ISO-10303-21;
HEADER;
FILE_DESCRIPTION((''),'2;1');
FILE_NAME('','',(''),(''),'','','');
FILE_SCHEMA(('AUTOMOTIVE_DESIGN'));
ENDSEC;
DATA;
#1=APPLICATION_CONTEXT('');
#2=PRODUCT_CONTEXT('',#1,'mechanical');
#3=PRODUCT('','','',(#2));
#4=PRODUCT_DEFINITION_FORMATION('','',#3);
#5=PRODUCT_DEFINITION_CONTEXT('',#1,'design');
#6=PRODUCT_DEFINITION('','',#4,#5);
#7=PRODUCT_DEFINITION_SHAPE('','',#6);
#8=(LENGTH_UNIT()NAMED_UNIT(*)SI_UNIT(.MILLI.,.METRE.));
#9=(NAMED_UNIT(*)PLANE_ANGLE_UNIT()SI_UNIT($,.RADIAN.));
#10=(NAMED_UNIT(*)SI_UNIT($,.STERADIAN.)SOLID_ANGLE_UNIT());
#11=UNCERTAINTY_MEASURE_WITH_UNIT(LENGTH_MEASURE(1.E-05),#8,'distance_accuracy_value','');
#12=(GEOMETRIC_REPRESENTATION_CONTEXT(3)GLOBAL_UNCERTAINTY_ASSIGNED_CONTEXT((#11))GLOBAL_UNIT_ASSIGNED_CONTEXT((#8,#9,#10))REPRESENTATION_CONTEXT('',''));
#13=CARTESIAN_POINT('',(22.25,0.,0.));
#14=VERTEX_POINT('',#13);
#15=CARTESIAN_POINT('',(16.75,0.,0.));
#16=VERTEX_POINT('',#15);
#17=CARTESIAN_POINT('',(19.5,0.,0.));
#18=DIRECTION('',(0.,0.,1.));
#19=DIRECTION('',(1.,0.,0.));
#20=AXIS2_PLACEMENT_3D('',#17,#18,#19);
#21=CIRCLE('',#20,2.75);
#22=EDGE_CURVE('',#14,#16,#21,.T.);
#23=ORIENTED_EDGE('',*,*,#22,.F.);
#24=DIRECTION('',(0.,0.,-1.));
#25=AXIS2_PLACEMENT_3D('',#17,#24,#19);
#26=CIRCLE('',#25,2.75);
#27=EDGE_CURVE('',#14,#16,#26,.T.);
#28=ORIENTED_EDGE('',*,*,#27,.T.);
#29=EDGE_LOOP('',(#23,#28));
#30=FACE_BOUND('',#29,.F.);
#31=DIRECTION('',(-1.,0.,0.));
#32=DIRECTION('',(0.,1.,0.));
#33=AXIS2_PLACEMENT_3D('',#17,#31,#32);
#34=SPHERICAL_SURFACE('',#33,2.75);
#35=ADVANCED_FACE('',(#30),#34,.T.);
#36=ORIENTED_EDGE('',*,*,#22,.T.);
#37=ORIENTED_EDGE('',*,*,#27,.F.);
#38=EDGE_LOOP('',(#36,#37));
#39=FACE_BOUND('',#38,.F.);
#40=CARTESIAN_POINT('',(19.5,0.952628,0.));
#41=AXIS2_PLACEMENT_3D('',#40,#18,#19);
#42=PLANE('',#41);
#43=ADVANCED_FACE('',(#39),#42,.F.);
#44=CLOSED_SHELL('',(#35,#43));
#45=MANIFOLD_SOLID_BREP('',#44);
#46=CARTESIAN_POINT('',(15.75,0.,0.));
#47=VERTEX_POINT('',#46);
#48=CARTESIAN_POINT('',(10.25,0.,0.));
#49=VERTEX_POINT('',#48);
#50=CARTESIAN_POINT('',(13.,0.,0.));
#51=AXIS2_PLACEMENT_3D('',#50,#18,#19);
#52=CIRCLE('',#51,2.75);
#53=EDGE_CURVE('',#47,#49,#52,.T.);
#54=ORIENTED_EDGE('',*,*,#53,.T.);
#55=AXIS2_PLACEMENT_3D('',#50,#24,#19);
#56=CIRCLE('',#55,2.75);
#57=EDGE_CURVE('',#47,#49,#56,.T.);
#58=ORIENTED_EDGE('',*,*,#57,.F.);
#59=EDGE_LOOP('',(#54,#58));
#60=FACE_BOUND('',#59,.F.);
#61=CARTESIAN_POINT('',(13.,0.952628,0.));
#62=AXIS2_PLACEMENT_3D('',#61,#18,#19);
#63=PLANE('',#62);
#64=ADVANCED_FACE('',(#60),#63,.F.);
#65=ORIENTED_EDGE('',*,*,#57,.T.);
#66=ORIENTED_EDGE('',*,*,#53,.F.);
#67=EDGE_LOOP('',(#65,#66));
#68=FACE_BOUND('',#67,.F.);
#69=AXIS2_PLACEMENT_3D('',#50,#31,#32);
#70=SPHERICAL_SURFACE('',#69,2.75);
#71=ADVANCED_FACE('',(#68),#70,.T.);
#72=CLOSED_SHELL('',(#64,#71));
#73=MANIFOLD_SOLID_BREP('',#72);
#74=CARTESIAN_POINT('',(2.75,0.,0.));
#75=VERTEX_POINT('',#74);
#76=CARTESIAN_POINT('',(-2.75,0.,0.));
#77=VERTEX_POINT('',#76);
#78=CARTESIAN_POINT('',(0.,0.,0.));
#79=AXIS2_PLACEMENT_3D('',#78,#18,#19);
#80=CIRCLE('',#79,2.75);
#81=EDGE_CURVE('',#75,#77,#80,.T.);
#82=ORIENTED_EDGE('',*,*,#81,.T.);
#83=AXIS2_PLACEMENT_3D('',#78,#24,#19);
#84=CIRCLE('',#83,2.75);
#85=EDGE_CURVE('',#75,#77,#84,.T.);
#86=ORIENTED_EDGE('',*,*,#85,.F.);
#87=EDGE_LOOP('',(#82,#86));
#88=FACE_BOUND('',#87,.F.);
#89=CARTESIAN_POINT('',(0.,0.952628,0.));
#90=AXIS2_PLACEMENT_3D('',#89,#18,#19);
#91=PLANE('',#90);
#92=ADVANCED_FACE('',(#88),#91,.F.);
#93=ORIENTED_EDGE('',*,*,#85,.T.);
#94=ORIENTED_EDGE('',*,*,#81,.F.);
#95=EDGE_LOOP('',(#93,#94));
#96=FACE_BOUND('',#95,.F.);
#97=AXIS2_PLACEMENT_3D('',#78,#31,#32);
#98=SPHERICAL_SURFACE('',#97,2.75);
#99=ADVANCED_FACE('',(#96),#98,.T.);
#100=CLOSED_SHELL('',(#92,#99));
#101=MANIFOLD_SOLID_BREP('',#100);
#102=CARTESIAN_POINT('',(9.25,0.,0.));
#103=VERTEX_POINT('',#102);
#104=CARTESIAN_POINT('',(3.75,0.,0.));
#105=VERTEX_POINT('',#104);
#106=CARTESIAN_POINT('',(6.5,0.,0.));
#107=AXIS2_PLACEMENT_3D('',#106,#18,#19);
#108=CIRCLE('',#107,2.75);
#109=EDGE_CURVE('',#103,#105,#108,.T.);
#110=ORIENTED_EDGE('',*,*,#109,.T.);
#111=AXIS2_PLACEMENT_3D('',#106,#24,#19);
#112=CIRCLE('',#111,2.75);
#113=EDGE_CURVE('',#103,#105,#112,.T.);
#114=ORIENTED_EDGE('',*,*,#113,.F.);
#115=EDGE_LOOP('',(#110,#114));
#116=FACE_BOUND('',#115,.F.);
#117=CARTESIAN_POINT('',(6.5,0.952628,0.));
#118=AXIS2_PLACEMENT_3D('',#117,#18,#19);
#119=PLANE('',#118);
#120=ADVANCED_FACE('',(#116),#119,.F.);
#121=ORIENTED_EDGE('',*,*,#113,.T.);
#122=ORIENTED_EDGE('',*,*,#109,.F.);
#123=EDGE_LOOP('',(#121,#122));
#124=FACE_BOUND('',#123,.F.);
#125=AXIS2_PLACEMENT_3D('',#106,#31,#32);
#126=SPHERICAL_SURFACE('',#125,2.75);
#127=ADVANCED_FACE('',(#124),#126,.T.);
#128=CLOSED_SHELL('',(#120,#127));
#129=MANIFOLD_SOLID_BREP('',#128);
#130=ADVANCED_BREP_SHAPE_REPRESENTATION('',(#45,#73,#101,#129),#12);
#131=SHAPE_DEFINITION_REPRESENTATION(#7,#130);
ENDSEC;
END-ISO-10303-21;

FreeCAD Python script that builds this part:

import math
import FreeCAD as App
import Part
import Sketcher

V = App.Vector
Q = App.Units.Quantity

doc = App.newDocument("Part")
body = doc.addObject("PartDesign::Body", "Body")
body.AllowCompound = True

sketch1 = doc.addObject("Sketcher::SketchObject", "Sketch")
body.addObject(sketch1)
sketch1.AttachmentSupport = (doc.XY_Plane, [""])
sketch1.MapMode = "FlatFace"
sketch1.addGeometry([
    Part.ArcOfCircle(Part.Circle(V(0, 0, 0), V(0, 0, 1), 2.8), math.radians(0), math.radians(180)),
    Part.LineSegment(V(-2.8, 0, 0), V(2.8, 0, 0)),
    Part.ArcOfCircle(Part.Circle(V(6.5, 0, 0), V(0, 0, 1), 2.8), math.radians(0), math.radians(180)),
    Part.LineSegment(V(3.8, 0, 0), V(9.2, 0, 0)),
    Part.ArcOfCircle(Part.Circle(V(13, 0, 0), V(0, 0, 1), 2.8), math.radians(0), math.radians(180)),
    Part.LineSegment(V(10.2, 0, 0), V(15.8, 0, 0)),
    Part.ArcOfCircle(Part.Circle(V(19.5, 0, 0), V(0, 0, 1), 2.8), math.radians(0), math.radians(180)),
    Part.LineSegment(V(16.8, 0, 0), V(22.2, 0, 0)),
], False)
sketch1.addConstraint([
    Sketcher.Constraint("Coincident", 0, 1, 1, 2),
    Sketcher.Constraint("Coincident", 1, 1, 0, 2),
    Sketcher.Constraint("Coincident", 2, 1, 3, 2),
    Sketcher.Constraint("Coincident", 3, 1, 2, 2),
    Sketcher.Constraint("Coincident", 4, 1, 5, 2),
    Sketcher.Constraint("Coincident", 5, 1, 4, 2),
    Sketcher.Constraint("Coincident", 6, 1, 7, 2),
    Sketcher.Constraint("Coincident", 7, 1, 6, 2),
    Sketcher.Constraint("Horizontal", 1),
    Sketcher.Constraint("Horizontal", 3),
    Sketcher.Constraint("Horizontal", 5),
    Sketcher.Constraint("Horizontal", 7),
    Sketcher.Constraint("Coincident", 0, 3, -1, 1),
    Sketcher.Constraint("Equal", 0, 2),
    Sketcher.Constraint("Equal", 2, 4),
    Sketcher.Constraint("Equal", 4, 6),
    Sketcher.Constraint("PointOnObject", 2, 3, -1),
    Sketcher.Constraint("PointOnObject", 4, 3, -1),
    Sketcher.Constraint("PointOnObject", 6, 3, -1),
    Sketcher.Constraint("PointOnObject", 0, 1, -1),
    Sketcher.Constraint("PointOnObject", 2, 1, -1),
    Sketcher.Constraint("PointOnObject", 4, 1, -1),
    Sketcher.Constraint("PointOnObject", 6, 1, -1),
    Sketcher.Constraint("Radius", 0, Q("2.75 mm")),
    Sketcher.Constraint("DistanceX", -1, 1, 4, 3, Q("13 mm")),
    Sketcher.Constraint("DistanceX", 2, 3, 6, 3, Q("13 mm")),
    Sketcher.Constraint("DistanceX", 0, 1, 3, 1, Q("1 mm")),
])
revolution = doc.addObject("PartDesign::Revolution", "Revolution")
body.addObject(revolution)
revolution.Profile = sketch1
revolution.ReferenceAxis = (sketch1, ["H_Axis"])
revolution.Angle = 180

doc.recompute()
